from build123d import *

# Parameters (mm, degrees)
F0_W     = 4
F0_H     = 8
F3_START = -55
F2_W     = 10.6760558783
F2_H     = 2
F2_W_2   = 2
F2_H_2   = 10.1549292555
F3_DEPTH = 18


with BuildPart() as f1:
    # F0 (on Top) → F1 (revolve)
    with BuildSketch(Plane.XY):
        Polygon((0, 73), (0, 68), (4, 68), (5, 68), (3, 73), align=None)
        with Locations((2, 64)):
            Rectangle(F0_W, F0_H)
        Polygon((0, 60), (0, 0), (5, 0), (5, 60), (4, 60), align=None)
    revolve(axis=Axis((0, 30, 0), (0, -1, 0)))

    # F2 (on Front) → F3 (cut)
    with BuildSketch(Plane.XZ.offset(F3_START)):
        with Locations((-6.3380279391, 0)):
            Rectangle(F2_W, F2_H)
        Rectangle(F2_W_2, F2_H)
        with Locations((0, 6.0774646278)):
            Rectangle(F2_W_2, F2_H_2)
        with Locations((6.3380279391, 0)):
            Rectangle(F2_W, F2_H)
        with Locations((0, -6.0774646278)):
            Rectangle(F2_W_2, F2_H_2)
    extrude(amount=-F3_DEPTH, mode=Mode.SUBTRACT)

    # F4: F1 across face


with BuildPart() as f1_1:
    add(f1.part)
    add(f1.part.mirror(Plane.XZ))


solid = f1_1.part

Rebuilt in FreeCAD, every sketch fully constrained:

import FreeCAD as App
import Part
import Sketcher
from FreeCAD import Vector
Q = App.Units.Quantity


def add_polygon(sketch, points):
    """Adds a closed chain of lines whose ends are joined by coincident constraints."""
    first, n = sketch.GeometryCount, len(points)
    for a, b in zip(points, points[1:] + points[:1]):
        sketch.addGeometry(Part.LineSegment(App.Vector(*a, 0), App.Vector(*b, 0)), False)
    for i in range(n):
        sketch.addConstraint(Sketcher.Constraint("Coincident", first + i, 2, first + (i + 1) % n, 1))

doc = App.newDocument("Part")
body = doc.addObject("PartDesign::Body", "Body")

# Sketch on XY plane
sketch1 = doc.addObject("Sketcher::SketchObject", "Sketch")
body.addObject(sketch1)
sketch1.AttachmentSupport = (doc.XY_Plane, [""])
sketch1.MapMode = "FlatFace"
add_polygon(sketch1, [(0, 73), (0, 0), (5, 0), (5, 60), (4, 60), (4, 68), (5, 68), (3, 73)])  # lines 0-7
sketch1.addConstraint([
    Sketcher.Constraint("Vertical", 0),
    Sketcher.Constraint("Horizontal", 1),
    Sketcher.Constraint("Vertical", 2),
    Sketcher.Constraint("Horizontal", 3),
    Sketcher.Constraint("Vertical", 4),
    Sketcher.Constraint("Horizontal", 5),
    Sketcher.Constraint("Horizontal", 7),
    Sketcher.Constraint("Coincident", 0, 2, -1, 1),
    Sketcher.Constraint("Vertical", 2, 2, 5, 2),
    Sketcher.Constraint("DistanceX", 1, 1, 1, 2, Q("5 mm")),
    Sketcher.Constraint("DistanceX", 3, 2, 3, 1, Q("1 mm")),
    Sketcher.Constraint("DistanceX", 7, 2, 7, 1, Q("3 mm")),
    Sketcher.Constraint("DistanceY", 0, 2, 0, 1, Q("73 mm")),
    Sketcher.Constraint("DistanceY", 2, 1, 2, 2, Q("60 mm")),
    Sketcher.Constraint("DistanceY", 4, 1, 4, 2, Q("8 mm")),
])
revolution = doc.addObject("PartDesign::Revolution", "Revolution")
body.addObject(revolution)
revolution.Profile = sketch1
revolution.ReferenceAxis = (sketch1, ["V_Axis"])
revolution.Angle = 360

# Sketch on XZ plane
sketch2 = doc.addObject("Sketcher::SketchObject", "Sketch001")
body.addObject(sketch2)
sketch2.AttachmentSupport = (doc.XZ_Plane, [""])
sketch2.MapMode = "FlatFace"
sketch2.AttachmentOffset = App.Placement(Vector(0, 0, -55), App.Rotation())
add_polygon(sketch2, [(-11.7, 1), (-11.7, -1), (-1, -1), (-1, -11.2), (1, -11.2), (1, -1), (11.7, -1), (11.7, 1), (1, 1), (1, 11.2), (-1, 11.2), (-1, 1)])  # lines 0-11
sketch2.addConstraint([
    Sketcher.Constraint("Vertical", 0),
    Sketcher.Constraint("Horizontal", 1),
    Sketcher.Constraint("Vertical", 2),
    Sketcher.Constraint("Horizontal", 3),
    Sketcher.Constraint("Vertical", 4),
    Sketcher.Constraint("Horizontal", 5),
    Sketcher.Constraint("Vertical", 6),
    Sketcher.Constraint("Horizontal", 7),
    Sketcher.Constraint("Vertical", 8),
    Sketcher.Constraint("Horizontal", 9),
    Sketcher.Constraint("Vertical", 10),
    Sketcher.Constraint("Horizontal", 11),
    Sketcher.Constraint("Symmetric", 0, 2, 6, 2, -1, 1),
    Sketcher.Constraint("Symmetric", 2, 2, 8, 2, -1, 1),
    Sketcher.Constraint("Symmetric", 4, 2, 10, 2, -1, 1),
    Sketcher.Constraint("Symmetric", 1, 2, 4, 2, -2),
    Sketcher.Constraint("Equal", 9, 0),
    Sketcher.Constraint("DistanceX", 3, 1, 3, 2, Q("2 mm")),
    Sketcher.Constraint("DistanceY", 2, 2, 2, 1, Q("10.154929 mm")),
    Sketcher.Constraint("DistanceX", 1, 1, 1, 2, Q("10.676056 mm")),
])
pocket1 = doc.addObject("PartDesign::Pocket", "Pocket")
body.addObject(pocket1)
pocket1.Profile = sketch2
pocket1.Length = 18
body2 = doc.addObject("PartDesign::Body", "Body001")
doc.recompute()

body2.BaseFeature = body
doc.recompute()

mirroring = doc.addObject("Part::Mirroring", "Mirroring")
mirroring.Source = body
mirroring.Base = Vector(0, 0, 0)
mirroring.Normal = Vector(0, -1, 0)
body3 = doc.addObject("PartDesign::Body", "Body002")
body3.BaseFeature = mirroring
boolean = doc.addObject("PartDesign::Boolean", "Boolean")
body2.addObject(boolean)
boolean.Type = "Fuse"
boolean.addObjects([body3])
doc.recompute()
mirroring.Visibility = False

doc.recompute()
